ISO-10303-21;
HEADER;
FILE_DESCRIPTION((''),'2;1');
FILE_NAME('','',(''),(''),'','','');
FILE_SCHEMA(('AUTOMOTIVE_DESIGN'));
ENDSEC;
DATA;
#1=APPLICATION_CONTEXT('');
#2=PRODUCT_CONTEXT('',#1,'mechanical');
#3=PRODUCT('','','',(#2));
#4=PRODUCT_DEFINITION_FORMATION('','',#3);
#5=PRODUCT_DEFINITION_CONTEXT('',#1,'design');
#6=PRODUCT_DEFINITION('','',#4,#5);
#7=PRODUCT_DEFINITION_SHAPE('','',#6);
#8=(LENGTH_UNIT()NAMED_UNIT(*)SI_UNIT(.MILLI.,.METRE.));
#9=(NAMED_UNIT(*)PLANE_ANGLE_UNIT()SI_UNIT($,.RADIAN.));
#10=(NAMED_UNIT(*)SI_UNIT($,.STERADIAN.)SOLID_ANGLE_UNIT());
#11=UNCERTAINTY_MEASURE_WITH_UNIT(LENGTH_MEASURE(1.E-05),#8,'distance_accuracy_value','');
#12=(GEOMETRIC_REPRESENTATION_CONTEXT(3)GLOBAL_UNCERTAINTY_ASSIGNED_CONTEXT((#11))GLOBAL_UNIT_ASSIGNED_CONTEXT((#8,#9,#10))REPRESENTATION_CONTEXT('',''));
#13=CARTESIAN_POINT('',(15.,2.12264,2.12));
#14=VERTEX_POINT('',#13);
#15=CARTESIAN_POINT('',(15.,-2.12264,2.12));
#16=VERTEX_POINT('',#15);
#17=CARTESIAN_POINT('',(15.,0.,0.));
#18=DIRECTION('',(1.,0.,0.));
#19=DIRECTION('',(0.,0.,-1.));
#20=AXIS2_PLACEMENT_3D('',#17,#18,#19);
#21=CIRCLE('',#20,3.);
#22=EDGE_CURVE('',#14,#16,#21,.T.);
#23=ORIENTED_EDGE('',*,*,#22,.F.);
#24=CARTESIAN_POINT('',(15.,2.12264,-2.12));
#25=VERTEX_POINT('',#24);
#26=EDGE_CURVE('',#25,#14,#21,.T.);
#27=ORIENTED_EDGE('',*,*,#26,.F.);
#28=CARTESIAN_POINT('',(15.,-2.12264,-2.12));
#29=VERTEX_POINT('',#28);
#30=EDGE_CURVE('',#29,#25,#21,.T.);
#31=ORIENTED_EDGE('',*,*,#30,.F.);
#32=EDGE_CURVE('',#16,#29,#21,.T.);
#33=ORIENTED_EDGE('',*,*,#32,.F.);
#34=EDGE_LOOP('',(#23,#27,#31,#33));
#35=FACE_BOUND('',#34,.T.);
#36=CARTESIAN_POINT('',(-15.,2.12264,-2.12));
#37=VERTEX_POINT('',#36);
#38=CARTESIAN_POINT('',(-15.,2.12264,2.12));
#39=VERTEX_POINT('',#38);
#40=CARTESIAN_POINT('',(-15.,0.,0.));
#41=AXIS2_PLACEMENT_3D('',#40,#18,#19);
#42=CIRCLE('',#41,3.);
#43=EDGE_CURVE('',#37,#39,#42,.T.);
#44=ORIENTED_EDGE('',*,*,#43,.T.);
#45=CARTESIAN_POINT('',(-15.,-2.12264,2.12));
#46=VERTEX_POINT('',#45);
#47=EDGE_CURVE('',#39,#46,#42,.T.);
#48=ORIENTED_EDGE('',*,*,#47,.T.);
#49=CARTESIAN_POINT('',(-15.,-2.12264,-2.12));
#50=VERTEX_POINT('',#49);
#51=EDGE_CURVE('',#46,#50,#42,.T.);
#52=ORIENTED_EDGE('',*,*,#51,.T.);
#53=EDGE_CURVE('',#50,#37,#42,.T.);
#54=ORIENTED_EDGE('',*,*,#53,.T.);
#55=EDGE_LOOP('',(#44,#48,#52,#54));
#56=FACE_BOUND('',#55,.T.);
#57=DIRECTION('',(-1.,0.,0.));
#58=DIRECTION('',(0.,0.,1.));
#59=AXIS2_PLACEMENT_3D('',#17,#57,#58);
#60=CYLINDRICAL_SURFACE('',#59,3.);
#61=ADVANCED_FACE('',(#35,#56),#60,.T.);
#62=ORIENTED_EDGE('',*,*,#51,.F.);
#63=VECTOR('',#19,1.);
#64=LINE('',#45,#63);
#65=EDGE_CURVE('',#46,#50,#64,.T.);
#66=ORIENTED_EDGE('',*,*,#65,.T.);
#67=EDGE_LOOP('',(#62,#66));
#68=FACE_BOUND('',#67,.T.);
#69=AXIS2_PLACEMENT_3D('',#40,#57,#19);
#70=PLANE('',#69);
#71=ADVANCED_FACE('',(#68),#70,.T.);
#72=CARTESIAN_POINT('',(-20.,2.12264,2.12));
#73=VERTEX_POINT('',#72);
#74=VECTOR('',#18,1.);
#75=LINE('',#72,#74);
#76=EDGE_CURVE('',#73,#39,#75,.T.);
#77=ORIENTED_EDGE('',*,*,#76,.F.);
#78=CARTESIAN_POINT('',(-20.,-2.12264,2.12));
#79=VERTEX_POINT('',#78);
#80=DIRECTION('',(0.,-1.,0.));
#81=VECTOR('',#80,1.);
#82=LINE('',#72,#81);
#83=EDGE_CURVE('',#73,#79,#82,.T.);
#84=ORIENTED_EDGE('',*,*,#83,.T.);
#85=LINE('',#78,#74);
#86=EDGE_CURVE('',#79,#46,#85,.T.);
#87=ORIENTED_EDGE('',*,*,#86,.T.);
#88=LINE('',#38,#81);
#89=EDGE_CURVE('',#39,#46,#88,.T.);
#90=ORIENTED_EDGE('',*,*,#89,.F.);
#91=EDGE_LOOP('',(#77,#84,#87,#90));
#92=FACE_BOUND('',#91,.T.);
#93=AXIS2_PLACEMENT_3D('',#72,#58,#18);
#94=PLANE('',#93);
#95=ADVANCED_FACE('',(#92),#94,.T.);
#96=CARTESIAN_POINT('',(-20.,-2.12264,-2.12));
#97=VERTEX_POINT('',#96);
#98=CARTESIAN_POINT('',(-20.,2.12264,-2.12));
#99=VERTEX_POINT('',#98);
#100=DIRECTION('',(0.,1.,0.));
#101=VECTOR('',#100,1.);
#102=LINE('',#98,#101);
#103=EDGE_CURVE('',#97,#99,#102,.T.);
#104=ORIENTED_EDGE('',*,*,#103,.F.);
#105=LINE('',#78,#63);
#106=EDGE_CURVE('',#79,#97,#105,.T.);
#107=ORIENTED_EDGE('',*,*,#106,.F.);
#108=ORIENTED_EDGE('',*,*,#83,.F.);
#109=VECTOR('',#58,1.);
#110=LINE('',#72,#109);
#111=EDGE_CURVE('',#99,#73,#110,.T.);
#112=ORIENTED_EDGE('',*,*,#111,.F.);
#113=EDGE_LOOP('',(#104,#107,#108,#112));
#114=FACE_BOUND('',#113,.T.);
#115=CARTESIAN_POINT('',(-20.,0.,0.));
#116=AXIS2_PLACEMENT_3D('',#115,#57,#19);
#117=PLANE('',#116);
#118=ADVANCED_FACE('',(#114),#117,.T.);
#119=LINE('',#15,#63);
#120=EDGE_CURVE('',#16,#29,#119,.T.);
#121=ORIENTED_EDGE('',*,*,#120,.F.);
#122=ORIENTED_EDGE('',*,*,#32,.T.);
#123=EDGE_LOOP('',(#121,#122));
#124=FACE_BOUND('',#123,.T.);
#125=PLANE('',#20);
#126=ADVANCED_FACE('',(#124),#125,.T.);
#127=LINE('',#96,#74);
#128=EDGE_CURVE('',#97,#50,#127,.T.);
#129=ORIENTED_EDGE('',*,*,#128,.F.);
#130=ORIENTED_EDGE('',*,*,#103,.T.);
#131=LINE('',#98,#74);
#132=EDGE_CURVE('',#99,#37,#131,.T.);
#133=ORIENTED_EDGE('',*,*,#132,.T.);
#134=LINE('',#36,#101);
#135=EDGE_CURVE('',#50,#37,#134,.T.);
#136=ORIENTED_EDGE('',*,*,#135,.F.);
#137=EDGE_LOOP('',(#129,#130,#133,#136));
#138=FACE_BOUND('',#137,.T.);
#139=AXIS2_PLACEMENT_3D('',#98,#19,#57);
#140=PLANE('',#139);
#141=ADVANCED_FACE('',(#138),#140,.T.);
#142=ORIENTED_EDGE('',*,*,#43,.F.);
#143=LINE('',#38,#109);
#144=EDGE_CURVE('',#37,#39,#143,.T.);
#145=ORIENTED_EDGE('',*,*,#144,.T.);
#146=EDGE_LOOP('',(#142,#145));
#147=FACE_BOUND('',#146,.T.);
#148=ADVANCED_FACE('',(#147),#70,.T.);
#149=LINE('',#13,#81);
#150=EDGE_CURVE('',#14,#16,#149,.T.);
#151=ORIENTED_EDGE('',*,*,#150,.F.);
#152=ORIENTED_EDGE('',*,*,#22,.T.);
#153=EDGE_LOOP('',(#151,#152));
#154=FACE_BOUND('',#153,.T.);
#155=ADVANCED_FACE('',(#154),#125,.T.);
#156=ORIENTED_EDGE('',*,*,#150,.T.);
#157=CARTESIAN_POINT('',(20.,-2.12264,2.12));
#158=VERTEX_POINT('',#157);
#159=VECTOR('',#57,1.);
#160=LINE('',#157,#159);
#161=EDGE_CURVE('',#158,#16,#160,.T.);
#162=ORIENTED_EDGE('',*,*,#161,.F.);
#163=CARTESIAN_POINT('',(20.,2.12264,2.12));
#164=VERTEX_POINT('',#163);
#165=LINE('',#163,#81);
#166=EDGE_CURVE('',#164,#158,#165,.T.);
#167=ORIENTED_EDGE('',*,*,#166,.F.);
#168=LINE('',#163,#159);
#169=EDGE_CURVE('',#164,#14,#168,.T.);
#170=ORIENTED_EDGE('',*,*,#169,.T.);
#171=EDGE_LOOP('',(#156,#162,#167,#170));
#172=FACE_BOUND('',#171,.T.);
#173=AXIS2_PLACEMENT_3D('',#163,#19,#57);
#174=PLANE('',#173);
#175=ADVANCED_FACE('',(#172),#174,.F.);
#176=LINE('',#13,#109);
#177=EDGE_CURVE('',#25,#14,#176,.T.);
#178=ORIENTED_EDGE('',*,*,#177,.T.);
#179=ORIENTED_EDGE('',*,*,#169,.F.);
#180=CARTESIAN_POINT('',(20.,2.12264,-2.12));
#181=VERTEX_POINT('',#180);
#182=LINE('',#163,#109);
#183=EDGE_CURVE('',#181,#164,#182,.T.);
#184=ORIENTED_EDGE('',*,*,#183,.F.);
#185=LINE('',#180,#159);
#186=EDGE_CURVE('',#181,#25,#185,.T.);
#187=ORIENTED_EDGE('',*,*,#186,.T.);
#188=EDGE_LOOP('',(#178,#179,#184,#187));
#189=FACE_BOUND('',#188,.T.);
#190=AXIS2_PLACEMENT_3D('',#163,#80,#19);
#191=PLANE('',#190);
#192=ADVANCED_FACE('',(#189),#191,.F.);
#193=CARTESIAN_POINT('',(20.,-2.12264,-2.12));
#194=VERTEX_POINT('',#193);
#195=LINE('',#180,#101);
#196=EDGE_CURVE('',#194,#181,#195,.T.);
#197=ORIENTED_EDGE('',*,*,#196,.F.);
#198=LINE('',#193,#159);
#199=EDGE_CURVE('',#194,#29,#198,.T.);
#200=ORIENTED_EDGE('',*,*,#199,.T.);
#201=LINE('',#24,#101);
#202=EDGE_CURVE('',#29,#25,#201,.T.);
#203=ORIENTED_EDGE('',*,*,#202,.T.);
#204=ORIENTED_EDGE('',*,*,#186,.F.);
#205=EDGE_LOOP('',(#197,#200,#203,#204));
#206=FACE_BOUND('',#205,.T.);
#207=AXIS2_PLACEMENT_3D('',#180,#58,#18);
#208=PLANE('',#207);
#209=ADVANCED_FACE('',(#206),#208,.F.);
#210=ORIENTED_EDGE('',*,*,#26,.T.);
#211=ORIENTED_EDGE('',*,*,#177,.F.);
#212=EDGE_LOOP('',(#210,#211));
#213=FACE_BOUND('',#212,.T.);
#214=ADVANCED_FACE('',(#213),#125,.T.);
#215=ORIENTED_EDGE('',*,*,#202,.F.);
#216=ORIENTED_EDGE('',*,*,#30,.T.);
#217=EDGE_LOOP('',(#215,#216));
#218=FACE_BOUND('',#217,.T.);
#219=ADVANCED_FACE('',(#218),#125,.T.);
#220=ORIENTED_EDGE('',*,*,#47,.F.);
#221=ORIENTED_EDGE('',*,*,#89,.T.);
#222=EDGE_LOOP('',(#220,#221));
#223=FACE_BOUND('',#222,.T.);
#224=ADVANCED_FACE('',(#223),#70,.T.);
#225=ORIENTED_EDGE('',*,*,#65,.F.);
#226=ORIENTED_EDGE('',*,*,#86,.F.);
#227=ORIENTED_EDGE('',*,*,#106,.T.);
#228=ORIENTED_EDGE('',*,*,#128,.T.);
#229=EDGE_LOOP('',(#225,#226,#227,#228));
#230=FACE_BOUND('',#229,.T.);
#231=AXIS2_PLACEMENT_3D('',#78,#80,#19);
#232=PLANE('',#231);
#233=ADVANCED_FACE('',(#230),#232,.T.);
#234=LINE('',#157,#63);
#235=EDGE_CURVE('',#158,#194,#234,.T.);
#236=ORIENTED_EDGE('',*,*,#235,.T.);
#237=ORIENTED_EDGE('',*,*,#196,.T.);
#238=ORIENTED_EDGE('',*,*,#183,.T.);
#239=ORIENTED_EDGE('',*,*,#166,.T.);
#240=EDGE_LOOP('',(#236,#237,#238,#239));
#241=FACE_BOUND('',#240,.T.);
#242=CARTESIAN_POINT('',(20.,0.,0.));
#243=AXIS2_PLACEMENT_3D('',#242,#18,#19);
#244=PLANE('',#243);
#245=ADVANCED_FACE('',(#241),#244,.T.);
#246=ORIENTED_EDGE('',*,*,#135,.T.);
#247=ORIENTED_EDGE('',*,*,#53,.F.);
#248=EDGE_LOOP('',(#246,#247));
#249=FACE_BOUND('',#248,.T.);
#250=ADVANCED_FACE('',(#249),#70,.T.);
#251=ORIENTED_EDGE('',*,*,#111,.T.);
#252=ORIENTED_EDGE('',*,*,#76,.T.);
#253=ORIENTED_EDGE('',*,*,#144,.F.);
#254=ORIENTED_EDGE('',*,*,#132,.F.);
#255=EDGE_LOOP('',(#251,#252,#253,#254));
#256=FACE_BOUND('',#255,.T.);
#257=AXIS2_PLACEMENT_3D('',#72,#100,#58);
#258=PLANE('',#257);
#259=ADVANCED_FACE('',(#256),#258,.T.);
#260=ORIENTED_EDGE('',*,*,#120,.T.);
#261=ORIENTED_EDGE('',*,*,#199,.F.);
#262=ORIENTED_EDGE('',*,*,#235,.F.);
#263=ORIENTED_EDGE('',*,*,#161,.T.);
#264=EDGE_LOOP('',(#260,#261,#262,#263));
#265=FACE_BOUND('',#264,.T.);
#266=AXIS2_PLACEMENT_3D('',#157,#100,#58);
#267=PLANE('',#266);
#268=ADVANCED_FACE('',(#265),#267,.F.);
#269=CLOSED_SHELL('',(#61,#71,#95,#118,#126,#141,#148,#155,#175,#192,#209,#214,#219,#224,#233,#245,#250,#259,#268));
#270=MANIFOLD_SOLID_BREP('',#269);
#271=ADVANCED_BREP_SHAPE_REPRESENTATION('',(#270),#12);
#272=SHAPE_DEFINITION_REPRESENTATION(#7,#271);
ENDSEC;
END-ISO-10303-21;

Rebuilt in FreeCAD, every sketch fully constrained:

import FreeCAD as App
import Part
import Sketcher

V = App.Vector
Q = App.Units.Quantity


def add_polygon(sketch, points):
    """Adds a closed chain of lines whose ends are joined by coincident constraints."""
    first, n = sketch.GeometryCount, len(points)
    for a, b in zip(points, points[1:] + points[:1]):
        sketch.addGeometry(Part.LineSegment(App.Vector(*a, 0), App.Vector(*b, 0)), False)
    for i in range(n):
        sketch.addConstraint(Sketcher.Constraint("Coincident", first + i, 2, first + (i + 1) % n, 1))

doc = App.newDocument("Part")
body = doc.addObject("PartDesign::Body", "Body")

sketch1 = doc.addObject("Sketcher::SketchObject", "Sketch")
body.addObject(sketch1)
sketch1.AttachmentSupport = (doc.YZ_Plane, [""])
sketch1.MapMode = "FlatFace"
sketch1.addGeometry(Part.Circle(V(0, 0, 0), V(0, 0, 1), 3), False)
sketch1.addConstraint(Sketcher.Constraint("Coincident", 0, 3, -1, 1))
sketch1.addConstraint(Sketcher.Constraint("Diameter", 0, Q("6 mm")))
pad1 = doc.addObject("PartDesign::Pad", "Pad")
body.addObject(pad1)
pad1.Profile = sketch1
pad1.Length = 15

sketch2 = doc.addObject("Sketcher::SketchObject", "Sketch001")
body.addObject(sketch2)
sketch2.AttachmentSupport = (doc.YZ_Plane, [""])
sketch2.MapMode = "FlatFace"
sketch2.AttachmentOffset = App.Placement(V(0, 0, 15), App.Rotation())
add_polygon(sketch2, [(2.12264, 2.12), (-2.12264, 2.12), (-2.12264, -2.12), (2.12264, -2.12)])
sketch2.addConstraint(Sketcher.Constraint("Horizontal", 0))
sketch2.addConstraint(Sketcher.Constraint("Vertical", 1))
sketch2.addConstraint(Sketcher.Constraint("Horizontal", 2))
sketch2.addConstraint(Sketcher.Constraint("Vertical", 3))
sketch2.addConstraint(Sketcher.Constraint("Symmetric", 0, 2, 2, 2, -1, 1))
sketch2.addConstraint(Sketcher.Constraint("DistanceY", 1, 2, 1, 1, Q("4.24 mm")))
sketch2.addConstraint(Sketcher.Constraint("DistanceX", 0, 2, 0, 1, Q("4.24528 mm")))
pad2 = doc.addObject("PartDesign::Pad", "Pad001")
body.addObject(pad2)
pad2.Profile = sketch2
pad2.Length = 5
doc.recompute()

mirrored = doc.addObject("PartDesign::Mirrored", "Mirrored")
body.addObject(mirrored)
mirrored.Originals = [pad1, pad2]
mirrored.MirrorPlane = (doc.YZ_Plane, [""])
body.Tip = mirrored

doc.recompute()
